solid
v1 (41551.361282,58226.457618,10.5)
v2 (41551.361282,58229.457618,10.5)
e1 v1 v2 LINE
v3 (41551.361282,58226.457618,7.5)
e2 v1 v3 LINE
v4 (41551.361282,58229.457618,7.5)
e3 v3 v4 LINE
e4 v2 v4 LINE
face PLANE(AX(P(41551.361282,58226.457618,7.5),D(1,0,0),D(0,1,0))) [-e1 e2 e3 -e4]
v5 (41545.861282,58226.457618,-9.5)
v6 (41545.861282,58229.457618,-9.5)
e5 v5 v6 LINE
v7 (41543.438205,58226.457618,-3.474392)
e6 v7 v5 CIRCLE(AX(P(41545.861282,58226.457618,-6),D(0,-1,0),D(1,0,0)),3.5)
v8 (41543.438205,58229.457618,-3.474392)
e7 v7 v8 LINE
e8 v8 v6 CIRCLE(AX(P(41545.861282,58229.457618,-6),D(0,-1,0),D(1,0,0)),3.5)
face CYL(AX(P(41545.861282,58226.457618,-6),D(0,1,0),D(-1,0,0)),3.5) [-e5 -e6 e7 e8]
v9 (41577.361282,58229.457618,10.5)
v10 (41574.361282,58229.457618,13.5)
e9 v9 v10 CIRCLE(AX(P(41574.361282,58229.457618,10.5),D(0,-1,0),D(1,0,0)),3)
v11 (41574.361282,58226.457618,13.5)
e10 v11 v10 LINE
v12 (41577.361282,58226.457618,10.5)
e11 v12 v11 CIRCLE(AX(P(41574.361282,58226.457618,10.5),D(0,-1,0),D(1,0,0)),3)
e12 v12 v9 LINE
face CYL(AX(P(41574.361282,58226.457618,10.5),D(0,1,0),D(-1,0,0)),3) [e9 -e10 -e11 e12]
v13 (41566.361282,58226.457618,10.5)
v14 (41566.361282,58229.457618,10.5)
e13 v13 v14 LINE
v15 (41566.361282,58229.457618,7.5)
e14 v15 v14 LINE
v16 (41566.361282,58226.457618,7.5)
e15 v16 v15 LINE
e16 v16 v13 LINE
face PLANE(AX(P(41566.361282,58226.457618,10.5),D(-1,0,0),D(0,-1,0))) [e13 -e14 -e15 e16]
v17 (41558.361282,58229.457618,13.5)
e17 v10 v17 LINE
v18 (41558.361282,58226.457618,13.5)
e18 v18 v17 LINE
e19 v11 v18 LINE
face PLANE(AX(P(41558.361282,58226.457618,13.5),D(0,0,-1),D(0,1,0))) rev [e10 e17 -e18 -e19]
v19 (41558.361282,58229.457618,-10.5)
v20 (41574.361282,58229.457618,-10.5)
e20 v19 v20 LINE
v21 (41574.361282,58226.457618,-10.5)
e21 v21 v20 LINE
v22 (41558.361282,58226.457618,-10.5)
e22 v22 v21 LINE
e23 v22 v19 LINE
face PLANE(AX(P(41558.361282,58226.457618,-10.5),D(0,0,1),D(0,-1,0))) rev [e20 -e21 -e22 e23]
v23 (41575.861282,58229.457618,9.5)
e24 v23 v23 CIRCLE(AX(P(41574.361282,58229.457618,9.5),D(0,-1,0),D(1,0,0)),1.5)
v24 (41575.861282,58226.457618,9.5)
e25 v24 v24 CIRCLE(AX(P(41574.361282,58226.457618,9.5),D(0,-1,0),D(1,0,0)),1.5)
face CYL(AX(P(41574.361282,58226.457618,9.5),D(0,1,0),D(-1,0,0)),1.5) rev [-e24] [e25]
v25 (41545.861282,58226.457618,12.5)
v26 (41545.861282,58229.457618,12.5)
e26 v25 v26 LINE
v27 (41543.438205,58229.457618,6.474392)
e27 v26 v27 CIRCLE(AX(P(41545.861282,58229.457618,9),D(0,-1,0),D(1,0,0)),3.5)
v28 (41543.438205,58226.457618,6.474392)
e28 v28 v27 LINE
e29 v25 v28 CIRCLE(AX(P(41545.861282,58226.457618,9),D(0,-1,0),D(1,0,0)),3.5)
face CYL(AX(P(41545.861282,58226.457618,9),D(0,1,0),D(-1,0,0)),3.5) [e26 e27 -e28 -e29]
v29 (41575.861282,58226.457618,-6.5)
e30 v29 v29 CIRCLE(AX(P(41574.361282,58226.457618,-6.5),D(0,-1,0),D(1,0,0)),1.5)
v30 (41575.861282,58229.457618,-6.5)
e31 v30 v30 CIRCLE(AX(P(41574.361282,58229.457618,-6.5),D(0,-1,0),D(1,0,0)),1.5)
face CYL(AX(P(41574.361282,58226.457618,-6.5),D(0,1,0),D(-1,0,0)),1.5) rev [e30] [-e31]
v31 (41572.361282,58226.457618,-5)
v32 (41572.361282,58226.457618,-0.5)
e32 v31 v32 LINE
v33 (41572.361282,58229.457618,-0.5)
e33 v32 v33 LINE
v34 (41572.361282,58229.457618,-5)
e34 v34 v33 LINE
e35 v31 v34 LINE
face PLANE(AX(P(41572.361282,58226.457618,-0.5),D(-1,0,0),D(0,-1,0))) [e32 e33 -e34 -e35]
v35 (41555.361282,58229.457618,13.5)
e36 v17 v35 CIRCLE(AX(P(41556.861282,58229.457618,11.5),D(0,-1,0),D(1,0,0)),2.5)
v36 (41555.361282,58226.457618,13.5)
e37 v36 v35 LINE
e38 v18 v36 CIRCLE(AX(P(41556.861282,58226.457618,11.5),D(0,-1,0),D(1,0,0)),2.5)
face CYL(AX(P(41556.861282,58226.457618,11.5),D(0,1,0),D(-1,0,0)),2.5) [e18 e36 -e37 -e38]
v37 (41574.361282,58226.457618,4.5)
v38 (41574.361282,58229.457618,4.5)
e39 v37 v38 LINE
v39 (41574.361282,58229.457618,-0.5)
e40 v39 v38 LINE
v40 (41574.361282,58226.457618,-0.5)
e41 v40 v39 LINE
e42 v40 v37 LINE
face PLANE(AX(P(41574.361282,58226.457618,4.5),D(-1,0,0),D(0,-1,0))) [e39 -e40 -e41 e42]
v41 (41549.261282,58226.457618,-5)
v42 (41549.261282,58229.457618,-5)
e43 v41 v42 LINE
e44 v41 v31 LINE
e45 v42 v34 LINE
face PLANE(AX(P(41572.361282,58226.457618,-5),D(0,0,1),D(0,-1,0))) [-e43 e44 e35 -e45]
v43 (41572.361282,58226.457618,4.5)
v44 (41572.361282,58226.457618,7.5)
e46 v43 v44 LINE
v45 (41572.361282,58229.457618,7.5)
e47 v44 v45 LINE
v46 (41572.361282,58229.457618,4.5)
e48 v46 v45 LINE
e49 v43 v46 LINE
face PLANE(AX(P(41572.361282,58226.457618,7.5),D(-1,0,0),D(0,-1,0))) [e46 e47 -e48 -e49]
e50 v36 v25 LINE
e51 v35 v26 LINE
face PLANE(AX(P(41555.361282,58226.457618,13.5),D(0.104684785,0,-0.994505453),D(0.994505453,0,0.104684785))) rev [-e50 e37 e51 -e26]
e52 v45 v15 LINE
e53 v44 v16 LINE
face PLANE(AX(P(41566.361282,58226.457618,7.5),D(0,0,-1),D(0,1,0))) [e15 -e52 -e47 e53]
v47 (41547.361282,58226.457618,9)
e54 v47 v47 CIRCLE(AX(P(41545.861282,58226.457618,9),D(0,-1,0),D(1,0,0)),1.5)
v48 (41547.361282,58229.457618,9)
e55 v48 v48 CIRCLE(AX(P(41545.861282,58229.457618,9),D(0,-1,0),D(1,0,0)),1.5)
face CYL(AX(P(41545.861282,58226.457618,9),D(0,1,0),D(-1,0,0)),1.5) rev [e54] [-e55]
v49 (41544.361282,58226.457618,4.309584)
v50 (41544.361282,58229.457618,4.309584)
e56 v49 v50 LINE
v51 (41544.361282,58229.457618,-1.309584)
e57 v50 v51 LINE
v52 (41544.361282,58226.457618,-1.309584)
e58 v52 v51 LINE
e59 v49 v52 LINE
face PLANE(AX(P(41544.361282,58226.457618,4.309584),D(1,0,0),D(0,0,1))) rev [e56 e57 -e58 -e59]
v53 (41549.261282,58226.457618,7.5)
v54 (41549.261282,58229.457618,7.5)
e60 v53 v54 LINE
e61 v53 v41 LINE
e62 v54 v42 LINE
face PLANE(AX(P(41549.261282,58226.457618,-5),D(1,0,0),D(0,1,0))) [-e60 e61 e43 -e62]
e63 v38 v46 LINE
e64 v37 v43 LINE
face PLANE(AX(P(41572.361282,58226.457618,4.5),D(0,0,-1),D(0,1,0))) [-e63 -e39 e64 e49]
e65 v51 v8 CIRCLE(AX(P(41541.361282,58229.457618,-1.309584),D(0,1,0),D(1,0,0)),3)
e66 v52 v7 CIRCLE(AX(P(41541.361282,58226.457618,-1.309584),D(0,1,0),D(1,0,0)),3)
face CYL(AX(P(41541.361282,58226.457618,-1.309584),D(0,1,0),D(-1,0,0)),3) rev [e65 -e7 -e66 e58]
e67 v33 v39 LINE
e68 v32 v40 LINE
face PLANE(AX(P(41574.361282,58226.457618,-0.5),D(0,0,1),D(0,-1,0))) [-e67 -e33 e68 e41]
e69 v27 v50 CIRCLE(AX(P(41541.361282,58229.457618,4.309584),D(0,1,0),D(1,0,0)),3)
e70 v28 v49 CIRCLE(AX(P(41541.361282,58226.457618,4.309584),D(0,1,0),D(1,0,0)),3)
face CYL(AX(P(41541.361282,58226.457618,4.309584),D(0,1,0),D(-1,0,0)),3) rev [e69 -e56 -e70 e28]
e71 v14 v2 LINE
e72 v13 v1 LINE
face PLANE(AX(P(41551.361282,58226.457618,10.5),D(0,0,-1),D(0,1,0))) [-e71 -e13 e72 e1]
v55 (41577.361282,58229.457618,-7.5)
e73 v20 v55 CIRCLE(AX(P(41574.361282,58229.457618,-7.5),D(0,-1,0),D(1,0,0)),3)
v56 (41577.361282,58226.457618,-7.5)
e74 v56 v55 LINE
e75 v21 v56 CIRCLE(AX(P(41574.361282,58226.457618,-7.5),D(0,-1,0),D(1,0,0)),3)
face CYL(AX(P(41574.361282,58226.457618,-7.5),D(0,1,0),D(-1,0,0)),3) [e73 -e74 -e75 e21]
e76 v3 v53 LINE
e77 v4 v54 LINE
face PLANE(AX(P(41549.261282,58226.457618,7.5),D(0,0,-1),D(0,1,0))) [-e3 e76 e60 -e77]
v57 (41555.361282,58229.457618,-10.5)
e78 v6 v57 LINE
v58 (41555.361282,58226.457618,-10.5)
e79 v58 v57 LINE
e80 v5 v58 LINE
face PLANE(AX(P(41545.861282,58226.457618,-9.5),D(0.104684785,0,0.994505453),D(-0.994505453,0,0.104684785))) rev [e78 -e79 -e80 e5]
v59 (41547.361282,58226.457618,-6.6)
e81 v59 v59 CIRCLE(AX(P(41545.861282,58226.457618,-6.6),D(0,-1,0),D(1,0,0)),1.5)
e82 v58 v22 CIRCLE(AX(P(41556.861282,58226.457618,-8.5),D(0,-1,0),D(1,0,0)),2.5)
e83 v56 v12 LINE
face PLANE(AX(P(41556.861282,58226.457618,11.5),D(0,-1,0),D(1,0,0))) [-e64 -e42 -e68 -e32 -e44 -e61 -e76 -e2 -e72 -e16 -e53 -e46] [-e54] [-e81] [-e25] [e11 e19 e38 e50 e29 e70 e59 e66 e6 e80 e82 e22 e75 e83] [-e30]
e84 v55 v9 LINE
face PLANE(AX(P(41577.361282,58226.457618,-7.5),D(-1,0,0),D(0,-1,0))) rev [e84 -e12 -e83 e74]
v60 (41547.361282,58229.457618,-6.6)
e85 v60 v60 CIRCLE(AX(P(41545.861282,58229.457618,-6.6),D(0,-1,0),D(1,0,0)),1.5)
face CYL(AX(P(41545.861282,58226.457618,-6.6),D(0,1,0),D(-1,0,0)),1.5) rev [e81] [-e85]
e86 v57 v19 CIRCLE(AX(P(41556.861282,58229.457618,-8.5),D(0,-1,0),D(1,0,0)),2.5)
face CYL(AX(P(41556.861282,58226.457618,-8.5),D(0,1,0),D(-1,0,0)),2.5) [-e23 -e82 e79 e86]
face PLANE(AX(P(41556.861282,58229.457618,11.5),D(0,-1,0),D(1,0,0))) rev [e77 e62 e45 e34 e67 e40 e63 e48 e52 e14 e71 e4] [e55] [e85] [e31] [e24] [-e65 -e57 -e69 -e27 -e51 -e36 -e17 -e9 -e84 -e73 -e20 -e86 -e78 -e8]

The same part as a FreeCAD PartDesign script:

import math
import FreeCAD as App
import Part
import Sketcher
from FreeCAD import Vector


def add_polygon(sketch, points):
    """Adds a closed chain of lines whose ends are joined by coincident constraints."""
    first, n = sketch.GeometryCount, len(points)
    for a, b in zip(points, points[1:] + points[:1]):
        sketch.addGeometry(Part.LineSegment(App.Vector(*a, 0), App.Vector(*b, 0)), False)
    for i in range(n):
        sketch.addConstraint(Sketcher.Constraint("Coincident", first + i, 2, first + (i + 1) % n, 1))

doc = App.newDocument("Part")
params = doc.addObject("Spreadsheet::Sheet", "Params")
for row, (alias, value) in enumerate([
    ("sketch1_diameter", "3 mm"),
    ("sketch1_radius", "3 mm"),
    ("sketch1_radius2", "2.5 mm"),
    ("sketch1_radius3", "3.5 mm"),
    ("sketch1_width", "16 mm"),
    ("pad1_length", "3 mm"),
], start=1):
    params.set(f"A{row}", alias)
    params.set(f"B{row}", "=" + value)
    params.setAlias(f"B{row}", alias)

body = doc.addObject("PartDesign::Body", "Body")

# Sketch on XY plane
sketch1 = doc.addObject("Sketcher::SketchObject", "Sketch")
body.addObject(sketch1)
sketch1.AttachmentSupport = (doc.XY_Plane, [""])
sketch1.MapMode = "FlatFace"
sketch1.addGeometry(Part.LineSegment(Vector(41574.4, 58240, 0), Vector(41558.4, 58240, 0)), False)  # 0
sketch1.addGeometry(Part.ArcOfCircle(Part.Circle(Vector(41556.9, 58238, 0), Vector(0, 0, 1), 2.5), math.radians(53), math.radians(127)), False)  # 1
sketch1.addGeometry(Part.LineSegment(Vector(41555.4, 58240, 0), Vector(41545.9, 58239, 0)), False)  # 2
sketch1.addGeometry(Part.ArcOfCircle(Part.Circle(Vector(41545.9, 58235.5, 0), Vector(0, 0, 1), 3.5), math.radians(90), math.radians(226)), False)  # 3
sketch1.addGeometry(Part.ArcOfCircle(Part.Circle(Vector(41541.4, 58230.8, 0), Vector(0, 0, 1), 3), math.radians(0), math.radians(46)), False)  # 4
sketch1.addGeometry(Part.LineSegment(Vector(41544.4, 58230.8, 0), Vector(41544.4, 58225.1, 0)), False)  # 5
sketch1.addGeometry(Part.ArcOfCircle(Part.Circle(Vector(41541.4, 58225.1, 0), Vector(0, 0, 1), 3), math.radians(-46), math.radians(0)), False)  # 6
sketch1.addGeometry(Part.ArcOfCircle(Part.Circle(Vector(41545.9, 58220.5, 0), Vector(0, 0, 1), 3.5), math.radians(134), math.radians(270)), False)  # 7
sketch1.addGeometry(Part.LineSegment(Vector(41545.9, 58217, 0), Vector(41555.4, 58216, 0)), False)  # 8
sketch1.addGeometry(Part.ArcOfCircle(Part.Circle(Vector(41556.9, 58218, 0), Vector(0, 0, 1), 2.5), math.radians(-127), math.radians(-53)), False)  # 9
sketch1.addGeometry(Part.LineSegment(Vector(41558.4, 58216, 0), Vector(41574.4, 58216, 0)), False)  # 10
sketch1.addGeometry(Part.ArcOfCircle(Part.Circle(Vector(41574.4, 58219, 0), Vector(0, 0, 1), 3), math.radians(-90), math.radians(0)), False)  # 11
sketch1.addGeometry(Part.LineSegment(Vector(41577.4, 58219, 0), Vector(41577.4, 58237, 0)), False)  # 12
sketch1.addGeometry(Part.ArcOfCircle(Part.Circle(Vector(41574.4, 58237, 0), Vector(0, 0, 1), 3), math.radians(0), math.radians(90)), False)  # 13
sketch1.addGeometry(Part.Circle(Vector(41574.4, 58220, 0), Vector(0, 0, 1), 1.5), False)  # 14
sketch1.addGeometry(Part.Circle(Vector(41545.9, 58219.9, 0), Vector(0, 0, 1), 1.5), False)  # 15
add_polygon(sketch1, [(41551.4, 58237), (41566.4, 58237), (41566.4, 58234), (41572.4, 58234), (41572.4, 58231), (41574.4, 58231), (41574.4, 58226), (41572.4, 58226), (41572.4, 58221.5), (41549.3, 58221.5), (41549.3, 58234), (41551.4, 58234)])  # lines 16-27
sketch1.addGeometry(Part.Circle(Vector(41574.4, 58236, 0), Vector(0, 0, 1), 1.5), False)  # 28
sketch1.addGeometry(Part.Circle(Vector(41545.9, 58235.5, 0), Vector(0, 0, 1), 1.5), False)  # 29
sketch1.addConstraint(Sketcher.Constraint("Coincident", 0, 2, 1, 1))
sketch1.addConstraint(Sketcher.Constraint("Coincident", 1, 2, 2, 1))
sketch1.addConstraint(Sketcher.Constraint("Coincident", 2, 2, 3, 1))
sketch1.addConstraint(Sketcher.Constraint("Tangent", 3, 2, 4, 2))
sketch1.addConstraint(Sketcher.Constraint("Tangent", 4, 1, 5, 1))
sketch1.addConstraint(Sketcher.Constraint("Tangent", 5, 2, 6, 2))
sketch1.addConstraint(Sketcher.Constraint("Tangent", 6, 1, 7, 1))
sketch1.addConstraint(Sketcher.Constraint("Coincident", 7, 2, 8, 1))
sketch1.addConstraint(Sketcher.Constraint("Coincident", 8, 2, 9, 1))
sketch1.addConstraint(Sketcher.Constraint("Coincident", 9, 2, 10, 1))
sketch1.addConstraint(Sketcher.Constraint("Tangent", 10, 2, 11, 1))
sketch1.addConstraint(Sketcher.Constraint("Tangent", 11, 2, 12, 1))
sketch1.addConstraint(Sketcher.Constraint("Tangent", 12, 2, 13, 1))
sketch1.addConstraint(Sketcher.Constraint("Tangent", 13, 2, 0, 1))
sketch1.addConstraint(Sketcher.Constraint("Horizontal", 0))
sketch1.addConstraint(Sketcher.Constraint("Vertical", 5))
sketch1.addConstraint(Sketcher.Constraint("Horizontal", 10))
sketch1.addConstraint(Sketcher.Constraint("Vertical", 12))
sketch1.addConstraint(Sketcher.Constraint("Horizontal", 16))
sketch1.addConstraint(Sketcher.Constraint("Vertical", 17))
sketch1.addConstraint(Sketcher.Constraint("Horizontal", 18))
sketch1.addConstraint(Sketcher.Constraint("Vertical", 19))
sketch1.addConstraint(Sketcher.Constraint("Horizontal", 20))
sketch1.addConstraint(Sketcher.Constraint("Vertical", 21))
sketch1.addConstraint(Sketcher.Constraint("Horizontal", 22))
sketch1.addConstraint(Sketcher.Constraint("Vertical", 23))
sketch1.addConstraint(Sketcher.Constraint("Horizontal", 24))
sketch1.addConstraint(Sketcher.Constraint("Vertical", 25))
sketch1.addConstraint(Sketcher.Constraint("Horizontal", 26))
sketch1.addConstraint(Sketcher.Constraint("Vertical", 27))
sketch1.addConstraint(Sketcher.Constraint("Coincident", 29, 3, 3, 3))
sketch1.addConstraint(Sketcher.Constraint("Equal", 4, 6))
sketch1.addConstraint(Sketcher.Constraint("Equal", 3, 7))
sketch1.addConstraint(Sketcher.Constraint("Equal", 1, 9))
sketch1.addConstraint(Sketcher.Constraint("Equal", 6, 11))
sketch1.addConstraint(Sketcher.Constraint("Equal", 11, 13))
sketch1.addConstraint(Sketcher.Constraint("Equal", 14, 15))
sketch1.addConstraint(Sketcher.Constraint("Equal", 15, 28))
sketch1.addConstraint(Sketcher.Constraint("Equal", 28, 29))
sketch1.addConstraint(Sketcher.Constraint("Horizontal", 0, 2, 1, 2))
sketch1.addConstraint(Sketcher.Constraint("Horizontal", 8, 2, 9, 2))
sketch1.addConstraint(Sketcher.Constraint("Horizontal", 12, 2, 16, 2))
sketch1.addConstraint(Sketcher.Constraint("Horizontal", 18, 2, 25, 2))
sketch1.addConstraint(Sketcher.Constraint("Vertical", 3, 3, 7, 3))
sketch1.addConstraint(Sketcher.Constraint("Vertical", 1, 3, 9, 3))
sketch1.addConstraint(Sketcher.Constraint("Vertical", 13, 3, 14, 3))
sketch1.addConstraint(Sketcher.Constraint("Vertical", 7, 3, 15, 3))
sketch1.addConstraint(Sketcher.Constraint("Vertical", 14, 3, 28, 3))
sketch1.addConstraint(Sketcher.Constraint("Vertical", 29, 3, 2, 2))
sketch1.addConstraint(Sketcher.Constraint("Vertical", 2, 2, 7, 2))
sketch1.addConstraint(Sketcher.Constraint("Vertical", 1, 2, 8, 2))
sketch1.addConstraint(Sketcher.Constraint("Vertical", 13, 2, 20, 2))
sketch1.addConstraint(Sketcher.Constraint("Vertical", 19, 2, 22, 2))
sketch1.addConstraint(Sketcher.Constraint("Equal", 17, 19))
sketch1.addConstraint(Sketcher.Constraint("Equal", 2, 8))
sketch1.addConstraint(Sketcher.Constraint("Diameter", 14, 3.0))
sketch1.addConstraint(Sketcher.Constraint("Radius", 4, 3.0))
sketch1.addConstraint(Sketcher.Constraint("Radius", 1, 2.5))
sketch1.addConstraint(Sketcher.Constraint("Radius", 3, 3.5))
sketch1.addConstraint(Sketcher.Constraint("DistanceX", 0, 2, 0, 1, 16.0))
sketch1.addConstraint(Sketcher.Constraint("DistanceX", 16, 1, 16, 2, 15.0))
sketch1.addConstraint(Sketcher.Constraint("DistanceX", 18, 1, 18, 2, 6.0))
sketch1.addConstraint(Sketcher.Constraint("DistanceX", 20, 1, 20, 2, 2.0))
sketch1.addConstraint(Sketcher.Constraint("DistanceY", 12, 1, 12, 2, 18.0))
sketch1.addConstraint(Sketcher.Constraint("DistanceY", 17, 2, 17, 1, 3.0))
sketch1.addConstraint(Sketcher.Constraint("DistanceY", 21, 2, 21, 1, 5.0))
sketch1.addConstraint(Sketcher.Constraint("DistanceX", 24, 2, 24, 1, 23.1))
sketch1.addConstraint(Sketcher.Constraint("DistanceY", 23, 2, 23, 1, 4.5))
sketch1.addConstraint(Sketcher.Constraint("DistanceX", 3, 3, 1, 3, 11.0))
sketch1.addConstraint(Sketcher.Constraint("DistanceY", 7, 3, 3, 3, 15.0))
sketch1.addConstraint(Sketcher.Constraint("DistanceY", 9, 3, 1, 3, 20.0))
sketch1.addConstraint(Sketcher.Constraint("DistanceX", 6, 3, 11, 3, 33.0))
sketch1.addConstraint(Sketcher.Constraint("DistanceY", 11, 3, 14, 3, 1.0))
sketch1.addConstraint(Sketcher.Constraint("DistanceY", 28, 3, 13, 3, 1.0))
sketch1.addConstraint(Sketcher.Constraint("DistanceY", 15, 3, 7, 3, 0.6))
sketch1.addConstraint(Sketcher.Constraint("DistanceX", -1, 1, 1, 3, 41556.861282))
sketch1.addConstraint(Sketcher.Constraint("DistanceY", -1, 1, 1, 3, 58237.957618))
sketch1.setExpression("Constraints[67]", "Params.sketch1_diameter")
sketch1.setExpression("Constraints[68]", "Params.sketch1_radius")
sketch1.setExpression("Constraints[69]", "Params.sketch1_radius2")
sketch1.setExpression("Constraints[70]", "Params.sketch1_radius3")
sketch1.setExpression("Constraints[71]", "Params.sketch1_width")
pad1 = doc.addObject("PartDesign::Pad", "Pad")
body.addObject(pad1)
pad1.Profile = sketch1
pad1.setExpression("Length", "Params.pad1_length")
body2 = doc.addObject("PartDesign::Body", "Body001")
doc.recompute()

body.Placement = App.Placement(Vector(0, 58229.457618, -58226.457618), App.Rotation(Vector(1, 0, 0), 90))
boolean = doc.addObject("PartDesign::Boolean", "Boolean")
body2.addObject(boolean)
boolean.Type = "Fuse"
boolean.addObjects([body])

doc.recompute()
